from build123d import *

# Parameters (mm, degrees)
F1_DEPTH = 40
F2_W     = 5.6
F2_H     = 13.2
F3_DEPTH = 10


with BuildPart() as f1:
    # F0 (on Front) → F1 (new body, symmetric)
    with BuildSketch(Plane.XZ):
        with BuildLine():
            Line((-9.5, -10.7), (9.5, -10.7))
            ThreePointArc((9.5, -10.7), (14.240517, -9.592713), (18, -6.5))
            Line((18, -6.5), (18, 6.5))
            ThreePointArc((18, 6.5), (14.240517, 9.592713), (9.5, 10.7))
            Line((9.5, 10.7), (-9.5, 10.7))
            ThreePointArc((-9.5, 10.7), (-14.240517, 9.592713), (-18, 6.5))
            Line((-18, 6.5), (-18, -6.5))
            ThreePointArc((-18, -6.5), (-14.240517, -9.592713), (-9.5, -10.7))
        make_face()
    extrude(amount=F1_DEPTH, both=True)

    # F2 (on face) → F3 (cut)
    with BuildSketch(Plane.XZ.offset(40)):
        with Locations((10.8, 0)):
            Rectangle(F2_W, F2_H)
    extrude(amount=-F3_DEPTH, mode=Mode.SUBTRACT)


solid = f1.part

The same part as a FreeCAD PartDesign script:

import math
import FreeCAD as App
import Part
import Sketcher
Q = App.Units.Quantity


def add_polygon(sketch, points):
    """Adds a closed chain of lines whose ends are joined by coincident constraints."""
    first, n = sketch.GeometryCount, len(points)
    for a, b in zip(points, points[1:] + points[:1]):
        sketch.addGeometry(Part.LineSegment(App.Vector(*a, 0), App.Vector(*b, 0)), False)
    for i in range(n):
        sketch.addConstraint(Sketcher.Constraint("Coincident", first + i, 2, first + (i + 1) % n, 1))

doc = App.newDocument("Part")
body = doc.addObject("PartDesign::Body", "Body")

sketch1 = body.newObject("Sketcher::SketchObject", "Sketch")
sketch1.AttachmentSupport = (doc.getObject("XZ_Plane"), [""])
sketch1.MapMode = "FlatFace"
sketch1.addGeometry([
    Part.LineSegment(App.Vector(-9.5, -10.7, 0), App.Vector(9.5, -10.7, 0)),
    Part.ArcOfCircle(Part.Circle(App.Vector(9.500002, 0.001187, 0), App.Vector(0, 0, 1), 10.701187), math.radians(-90.000008), math.radians(-37.410412)),
    Part.LineSegment(App.Vector(18, -6.5, 0), App.Vector(18, 6.5, 0)),
    Part.ArcOfCircle(Part.Circle(App.Vector(9.500002, -0.001187, 0), App.Vector(0, 0, 1), 10.701187), math.radians(37.410412), math.radians(90.000008)),
    Part.LineSegment(App.Vector(9.5, 10.7, 0), App.Vector(-9.5, 10.7, 0)),
    Part.ArcOfCircle(Part.Circle(App.Vector(-9.500002, -0.001187, 0), App.Vector(0, 0, 1), 10.701187), math.radians(89.999992), math.radians(142.589588)),
    Part.LineSegment(App.Vector(-18, 6.5, 0), App.Vector(-18, -6.5, 0)),
    Part.ArcOfCircle(Part.Circle(App.Vector(-9.500002, 0.001187, 0), App.Vector(0, 0, 1), 10.701187), math.radians(-142.589588), math.radians(-89.999992)),
], False)
sketch1.addConstraint([
    Sketcher.Constraint("Tangent", 0, 2, 1, 1),
    Sketcher.Constraint("Coincident", 1, 2, 2, 1),
    Sketcher.Constraint("Coincident", 2, 2, 3, 1),
    Sketcher.Constraint("Tangent", 3, 2, 4, 1),
    Sketcher.Constraint("Tangent", 4, 2, 5, 1),
    Sketcher.Constraint("Coincident", 5, 2, 6, 1),
    Sketcher.Constraint("Coincident", 6, 2, 7, 1),
    Sketcher.Constraint("Tangent", 7, 2, 0, 1),
    Sketcher.Constraint("Horizontal", 0),
    Sketcher.Constraint("Vertical", 2),
    Sketcher.Constraint("Horizontal", 4),
    Sketcher.Constraint("Vertical", 6),
    Sketcher.Constraint("Equal", 1, 3),
    Sketcher.Constraint("Equal", 3, 5),
    Sketcher.Constraint("Equal", 5, 7),
    Sketcher.Constraint("Symmetric", 1, 3, 5, 3, -1, 1),
    Sketcher.Constraint("Symmetric", 2, 2, 6, 2, -1, 1),
    Sketcher.Constraint("Horizontal", 2, 2, 5, 2),
    Sketcher.Constraint("DistanceX", 0, 1, 0, 2, Q("19 mm")),
    Sketcher.Constraint("DistanceY", 2, 1, 2, 2, Q("13 mm")),
    Sketcher.Constraint("DistanceX", -1, 1, 1, 2, Q("18 mm")),
    Sketcher.Constraint("DistanceY", 0, 2, -1, 1, Q("10.7 mm")),
])
pad1 = body.newObject("PartDesign::Pad", "Pad")
pad1.Profile = sketch1
pad1.Length = 80
pad1.Midplane = True

sketch2 = body.newObject("Sketcher::SketchObject", "Sketch001")
sketch2.AttachmentSupport = (doc.getObject("XZ_Plane"), [""])
sketch2.MapMode = "FlatFace"
sketch2.AttachmentOffset = App.Placement(App.Vector(0, 0, 40), App.Rotation())
add_polygon(sketch2, [(8, 6.6), (8, -6.6), (13.6, -6.6), (13.6, 6.6)])
sketch2.addConstraint([
    Sketcher.Constraint("Vertical", 0),
    Sketcher.Constraint("Horizontal", 1),
    Sketcher.Constraint("Vertical", 2),
    Sketcher.Constraint("Horizontal", 3),
    Sketcher.Constraint("DistanceX", 1, 1, 1, 2, Q("5.6 mm")),
    Sketcher.Constraint("DistanceY", 0, 2, 0, 1, Q("13.2 mm")),
    Sketcher.Constraint("DistanceX", -1, 1, 0, 2, Q("8 mm")),
    Sketcher.Constraint("DistanceY", 0, 2, -1, 1, Q("6.6 mm")),
])
pocket1 = body.newObject("PartDesign::Pocket", "Pocket")
pocket1.Profile = sketch2
pocket1.Length = 10

doc.recompute()
